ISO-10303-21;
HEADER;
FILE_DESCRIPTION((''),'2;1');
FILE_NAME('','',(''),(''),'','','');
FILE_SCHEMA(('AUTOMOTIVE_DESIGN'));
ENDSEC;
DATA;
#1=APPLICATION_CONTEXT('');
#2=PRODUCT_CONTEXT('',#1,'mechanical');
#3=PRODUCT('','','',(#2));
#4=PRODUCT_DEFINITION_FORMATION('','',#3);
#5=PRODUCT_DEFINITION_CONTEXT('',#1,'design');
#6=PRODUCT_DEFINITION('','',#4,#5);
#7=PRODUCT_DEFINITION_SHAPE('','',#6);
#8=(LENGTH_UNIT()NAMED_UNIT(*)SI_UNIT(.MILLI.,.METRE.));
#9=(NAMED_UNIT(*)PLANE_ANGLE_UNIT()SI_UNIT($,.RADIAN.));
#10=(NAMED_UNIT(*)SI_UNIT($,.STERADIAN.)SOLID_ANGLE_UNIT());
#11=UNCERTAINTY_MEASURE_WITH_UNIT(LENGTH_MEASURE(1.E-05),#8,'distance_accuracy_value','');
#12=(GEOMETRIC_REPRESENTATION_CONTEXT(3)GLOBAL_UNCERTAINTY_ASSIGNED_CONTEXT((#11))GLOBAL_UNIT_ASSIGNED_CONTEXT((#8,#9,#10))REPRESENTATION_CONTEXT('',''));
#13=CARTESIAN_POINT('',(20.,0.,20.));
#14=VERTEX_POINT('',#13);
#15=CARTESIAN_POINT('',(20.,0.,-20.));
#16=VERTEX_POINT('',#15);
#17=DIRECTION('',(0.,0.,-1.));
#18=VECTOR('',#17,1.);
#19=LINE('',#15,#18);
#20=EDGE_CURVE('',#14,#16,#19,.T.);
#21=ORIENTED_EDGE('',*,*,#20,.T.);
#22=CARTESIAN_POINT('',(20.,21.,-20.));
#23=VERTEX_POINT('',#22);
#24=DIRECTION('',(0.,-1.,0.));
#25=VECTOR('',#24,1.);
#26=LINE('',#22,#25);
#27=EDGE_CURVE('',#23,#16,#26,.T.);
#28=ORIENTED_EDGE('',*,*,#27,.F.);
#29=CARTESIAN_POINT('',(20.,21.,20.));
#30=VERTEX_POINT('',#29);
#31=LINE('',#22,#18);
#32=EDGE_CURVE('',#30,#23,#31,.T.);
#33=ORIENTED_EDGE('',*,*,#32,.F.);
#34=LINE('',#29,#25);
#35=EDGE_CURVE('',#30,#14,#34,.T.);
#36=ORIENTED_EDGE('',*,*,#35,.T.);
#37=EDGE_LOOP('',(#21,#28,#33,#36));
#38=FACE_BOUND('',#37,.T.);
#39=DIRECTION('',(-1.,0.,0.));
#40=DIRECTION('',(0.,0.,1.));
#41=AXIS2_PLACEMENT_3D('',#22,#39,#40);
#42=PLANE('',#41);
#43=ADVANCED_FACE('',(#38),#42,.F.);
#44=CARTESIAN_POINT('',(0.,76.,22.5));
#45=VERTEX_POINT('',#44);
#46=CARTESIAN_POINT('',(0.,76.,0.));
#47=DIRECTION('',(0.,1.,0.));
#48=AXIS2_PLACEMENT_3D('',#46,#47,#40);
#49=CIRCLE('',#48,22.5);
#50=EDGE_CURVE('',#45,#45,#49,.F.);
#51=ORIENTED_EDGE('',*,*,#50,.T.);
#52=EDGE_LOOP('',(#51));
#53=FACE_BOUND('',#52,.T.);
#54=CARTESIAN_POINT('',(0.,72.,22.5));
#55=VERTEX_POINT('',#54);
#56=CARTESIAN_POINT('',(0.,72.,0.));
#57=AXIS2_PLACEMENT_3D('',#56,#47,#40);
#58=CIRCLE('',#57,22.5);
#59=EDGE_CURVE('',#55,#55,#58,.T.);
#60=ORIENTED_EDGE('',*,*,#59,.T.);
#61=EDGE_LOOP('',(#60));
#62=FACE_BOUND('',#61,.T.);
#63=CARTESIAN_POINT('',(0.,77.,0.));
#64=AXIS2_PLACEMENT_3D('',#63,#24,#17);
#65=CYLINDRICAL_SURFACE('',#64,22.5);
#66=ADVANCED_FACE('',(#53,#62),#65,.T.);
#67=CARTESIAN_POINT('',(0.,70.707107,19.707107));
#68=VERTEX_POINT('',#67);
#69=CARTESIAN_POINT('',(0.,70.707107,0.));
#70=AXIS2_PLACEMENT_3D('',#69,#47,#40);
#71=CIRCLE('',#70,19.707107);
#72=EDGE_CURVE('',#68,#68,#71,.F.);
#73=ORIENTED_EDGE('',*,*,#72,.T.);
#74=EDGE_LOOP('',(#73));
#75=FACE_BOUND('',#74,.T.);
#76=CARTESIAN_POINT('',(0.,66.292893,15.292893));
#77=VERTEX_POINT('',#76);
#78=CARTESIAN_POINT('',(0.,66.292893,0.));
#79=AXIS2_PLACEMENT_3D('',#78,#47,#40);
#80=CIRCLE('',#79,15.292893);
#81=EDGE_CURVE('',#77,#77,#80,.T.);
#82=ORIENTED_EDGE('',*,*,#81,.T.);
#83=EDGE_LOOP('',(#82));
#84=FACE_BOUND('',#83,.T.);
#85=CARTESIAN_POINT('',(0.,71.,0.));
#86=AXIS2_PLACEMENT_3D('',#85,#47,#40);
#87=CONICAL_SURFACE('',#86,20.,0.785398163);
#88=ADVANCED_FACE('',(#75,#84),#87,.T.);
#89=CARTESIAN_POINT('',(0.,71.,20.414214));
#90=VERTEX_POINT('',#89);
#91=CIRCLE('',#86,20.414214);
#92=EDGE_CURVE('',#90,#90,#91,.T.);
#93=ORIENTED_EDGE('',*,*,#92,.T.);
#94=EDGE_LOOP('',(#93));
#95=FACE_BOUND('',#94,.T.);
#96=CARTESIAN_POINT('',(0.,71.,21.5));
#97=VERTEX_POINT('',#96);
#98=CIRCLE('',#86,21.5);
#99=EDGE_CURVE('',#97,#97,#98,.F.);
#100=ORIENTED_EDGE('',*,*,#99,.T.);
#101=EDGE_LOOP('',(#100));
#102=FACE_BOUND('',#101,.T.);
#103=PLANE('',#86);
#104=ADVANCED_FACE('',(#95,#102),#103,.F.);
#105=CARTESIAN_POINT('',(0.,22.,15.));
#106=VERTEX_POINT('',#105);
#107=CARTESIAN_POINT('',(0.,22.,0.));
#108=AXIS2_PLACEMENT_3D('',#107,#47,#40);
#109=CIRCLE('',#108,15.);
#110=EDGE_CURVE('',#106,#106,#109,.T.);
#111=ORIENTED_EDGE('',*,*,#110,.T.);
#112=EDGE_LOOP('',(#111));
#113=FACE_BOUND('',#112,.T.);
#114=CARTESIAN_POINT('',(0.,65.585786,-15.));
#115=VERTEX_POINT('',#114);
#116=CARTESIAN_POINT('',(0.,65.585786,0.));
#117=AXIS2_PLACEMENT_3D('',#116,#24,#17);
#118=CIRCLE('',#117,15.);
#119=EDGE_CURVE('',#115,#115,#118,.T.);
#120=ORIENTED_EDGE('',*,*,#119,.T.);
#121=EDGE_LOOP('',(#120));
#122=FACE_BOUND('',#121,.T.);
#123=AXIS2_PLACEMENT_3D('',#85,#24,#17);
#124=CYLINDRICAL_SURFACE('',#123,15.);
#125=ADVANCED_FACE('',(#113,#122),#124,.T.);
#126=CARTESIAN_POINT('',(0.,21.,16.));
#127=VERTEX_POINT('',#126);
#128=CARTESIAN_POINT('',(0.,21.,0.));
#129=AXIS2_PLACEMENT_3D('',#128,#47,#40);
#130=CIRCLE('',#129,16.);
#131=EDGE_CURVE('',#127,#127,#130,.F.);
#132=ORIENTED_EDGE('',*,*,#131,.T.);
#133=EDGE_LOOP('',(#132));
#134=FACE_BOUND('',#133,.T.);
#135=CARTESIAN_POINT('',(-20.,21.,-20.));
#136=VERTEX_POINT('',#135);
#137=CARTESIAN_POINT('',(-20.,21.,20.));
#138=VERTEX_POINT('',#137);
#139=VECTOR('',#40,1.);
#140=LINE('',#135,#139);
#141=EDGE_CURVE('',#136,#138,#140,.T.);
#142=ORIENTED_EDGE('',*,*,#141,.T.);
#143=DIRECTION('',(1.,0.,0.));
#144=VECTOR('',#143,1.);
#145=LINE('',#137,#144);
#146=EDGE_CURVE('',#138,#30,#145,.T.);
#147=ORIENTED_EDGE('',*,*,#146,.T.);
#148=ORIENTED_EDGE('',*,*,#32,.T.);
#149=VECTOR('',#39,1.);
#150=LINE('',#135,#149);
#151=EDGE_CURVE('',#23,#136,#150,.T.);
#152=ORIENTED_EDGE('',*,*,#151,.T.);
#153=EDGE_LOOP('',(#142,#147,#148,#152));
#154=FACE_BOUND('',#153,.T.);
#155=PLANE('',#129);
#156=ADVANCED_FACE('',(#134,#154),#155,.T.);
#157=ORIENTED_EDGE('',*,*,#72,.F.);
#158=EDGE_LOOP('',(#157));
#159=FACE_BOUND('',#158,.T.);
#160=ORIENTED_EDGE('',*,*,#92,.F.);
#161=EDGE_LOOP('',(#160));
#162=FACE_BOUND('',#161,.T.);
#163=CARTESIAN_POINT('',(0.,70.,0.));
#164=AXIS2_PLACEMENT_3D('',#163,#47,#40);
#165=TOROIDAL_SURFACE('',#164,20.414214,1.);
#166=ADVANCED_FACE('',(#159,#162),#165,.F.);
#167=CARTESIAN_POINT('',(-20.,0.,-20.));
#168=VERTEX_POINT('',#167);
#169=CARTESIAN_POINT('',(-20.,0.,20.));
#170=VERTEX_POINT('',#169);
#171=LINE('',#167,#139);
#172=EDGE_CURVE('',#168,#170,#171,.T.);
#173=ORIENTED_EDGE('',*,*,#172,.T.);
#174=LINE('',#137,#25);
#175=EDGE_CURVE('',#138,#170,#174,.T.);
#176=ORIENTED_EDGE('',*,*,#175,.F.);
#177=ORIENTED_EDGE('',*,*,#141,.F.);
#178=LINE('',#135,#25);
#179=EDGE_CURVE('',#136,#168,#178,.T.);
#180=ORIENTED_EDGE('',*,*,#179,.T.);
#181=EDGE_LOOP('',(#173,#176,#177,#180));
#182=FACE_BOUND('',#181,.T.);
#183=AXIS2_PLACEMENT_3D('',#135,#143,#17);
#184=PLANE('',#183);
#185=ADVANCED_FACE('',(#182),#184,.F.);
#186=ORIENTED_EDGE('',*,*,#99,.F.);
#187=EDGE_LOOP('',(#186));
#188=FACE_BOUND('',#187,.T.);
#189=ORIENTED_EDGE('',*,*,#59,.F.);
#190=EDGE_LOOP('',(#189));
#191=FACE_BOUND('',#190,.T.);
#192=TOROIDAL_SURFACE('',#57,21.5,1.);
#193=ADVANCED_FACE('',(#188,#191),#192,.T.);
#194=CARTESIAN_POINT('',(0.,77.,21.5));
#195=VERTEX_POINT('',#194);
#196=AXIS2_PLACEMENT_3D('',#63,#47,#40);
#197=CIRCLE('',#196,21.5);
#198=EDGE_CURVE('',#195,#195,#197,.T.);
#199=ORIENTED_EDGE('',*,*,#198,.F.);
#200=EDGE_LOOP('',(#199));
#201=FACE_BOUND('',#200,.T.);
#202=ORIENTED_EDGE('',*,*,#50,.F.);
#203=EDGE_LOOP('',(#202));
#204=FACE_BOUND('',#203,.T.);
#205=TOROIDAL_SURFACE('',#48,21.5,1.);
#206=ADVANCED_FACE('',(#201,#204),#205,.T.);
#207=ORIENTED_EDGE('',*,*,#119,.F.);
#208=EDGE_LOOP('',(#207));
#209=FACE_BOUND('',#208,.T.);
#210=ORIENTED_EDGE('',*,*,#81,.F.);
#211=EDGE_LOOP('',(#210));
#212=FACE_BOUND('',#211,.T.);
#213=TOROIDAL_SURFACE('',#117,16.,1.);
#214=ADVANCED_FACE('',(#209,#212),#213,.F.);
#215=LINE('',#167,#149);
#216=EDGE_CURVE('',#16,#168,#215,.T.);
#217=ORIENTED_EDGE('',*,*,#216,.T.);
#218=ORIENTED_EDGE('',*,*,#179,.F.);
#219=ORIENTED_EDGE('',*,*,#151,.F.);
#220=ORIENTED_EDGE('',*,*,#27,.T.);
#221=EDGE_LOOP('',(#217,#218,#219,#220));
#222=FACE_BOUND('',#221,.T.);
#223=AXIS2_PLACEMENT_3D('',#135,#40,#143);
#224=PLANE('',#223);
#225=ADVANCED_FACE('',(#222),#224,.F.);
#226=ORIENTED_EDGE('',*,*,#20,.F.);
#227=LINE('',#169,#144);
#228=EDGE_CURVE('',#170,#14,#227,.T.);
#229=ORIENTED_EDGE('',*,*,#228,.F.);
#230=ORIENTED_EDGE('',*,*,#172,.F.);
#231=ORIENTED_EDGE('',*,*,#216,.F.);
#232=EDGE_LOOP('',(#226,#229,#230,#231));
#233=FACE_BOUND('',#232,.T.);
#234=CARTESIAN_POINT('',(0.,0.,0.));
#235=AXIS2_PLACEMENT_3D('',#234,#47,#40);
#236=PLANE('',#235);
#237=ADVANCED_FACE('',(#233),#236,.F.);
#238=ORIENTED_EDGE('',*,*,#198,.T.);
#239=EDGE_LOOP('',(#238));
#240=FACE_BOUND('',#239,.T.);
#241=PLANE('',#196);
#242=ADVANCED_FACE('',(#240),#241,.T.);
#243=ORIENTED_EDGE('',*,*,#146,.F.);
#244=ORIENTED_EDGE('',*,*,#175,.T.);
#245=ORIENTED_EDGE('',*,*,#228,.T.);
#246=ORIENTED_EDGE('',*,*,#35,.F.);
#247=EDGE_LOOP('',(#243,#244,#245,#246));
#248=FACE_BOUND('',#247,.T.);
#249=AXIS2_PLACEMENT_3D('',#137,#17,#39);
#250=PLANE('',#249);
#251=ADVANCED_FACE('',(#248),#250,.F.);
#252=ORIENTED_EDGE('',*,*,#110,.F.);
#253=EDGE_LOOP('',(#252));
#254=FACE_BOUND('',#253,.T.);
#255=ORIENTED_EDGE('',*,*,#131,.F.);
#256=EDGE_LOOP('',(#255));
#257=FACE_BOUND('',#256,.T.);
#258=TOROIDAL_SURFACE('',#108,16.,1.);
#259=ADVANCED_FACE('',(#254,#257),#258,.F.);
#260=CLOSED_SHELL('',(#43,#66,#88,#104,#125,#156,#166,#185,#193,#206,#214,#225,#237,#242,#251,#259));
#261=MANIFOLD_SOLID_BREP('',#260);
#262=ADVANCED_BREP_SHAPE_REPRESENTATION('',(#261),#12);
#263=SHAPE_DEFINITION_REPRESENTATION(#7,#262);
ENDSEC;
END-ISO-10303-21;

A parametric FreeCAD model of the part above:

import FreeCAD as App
import Part
import Sketcher


def edges_at(feature, points):
    """Names of the edges that pass closest to the given points."""
    edges = feature.Shape.Edges
    near = lambda p: min(range(len(edges)), key=lambda i: edges[i].distToShape(Part.Vertex(*p))[0])
    return sorted({f"Edge{near(p) + 1}" for p in points})


def add_polygon(sketch, points):
    """Adds a closed chain of lines whose ends are joined by coincident constraints."""
    first, n = sketch.GeometryCount, len(points)
    for a, b in zip(points, points[1:] + points[:1]):
        sketch.addGeometry(Part.LineSegment(App.Vector(*a, 0), App.Vector(*b, 0)), False)
    for i in range(n):
        sketch.addConstraint(Sketcher.Constraint("Coincident", first + i, 2, first + (i + 1) % n, 1))

doc = App.newDocument("Part")
body = doc.addObject("PartDesign::Body", "Body")

# Sketch on XZ plane
sketch1 = body.newObject("Sketcher::SketchObject", "Sketch")
sketch1.AttachmentSupport = (doc.getObject("XZ_Plane"), [""])
sketch1.MapMode = "FlatFace"
add_polygon(sketch1, [(-20, -20), (-20, 20), (20, 20), (20, -20)])  # lines 0-3
sketch1.addConstraint([
    Sketcher.Constraint("Vertical", 0),
    Sketcher.Constraint("Horizontal", 1),
    Sketcher.Constraint("Vertical", 2),
    Sketcher.Constraint("Horizontal", 3),
    Sketcher.Constraint("Symmetric", 0, 2, 2, 2, -1, 1),
    Sketcher.Constraint("Equal", 3, 0),
    Sketcher.Constraint("DistanceX", 1, 1, 1, 2, 40.0),
])
pad1 = body.newObject("PartDesign::Pad", "Pad")
pad1.Profile = sketch1
pad1.Length = 21
pad1.Reversed = True

# Sketch on XZ plane
sketch2 = body.newObject("Sketcher::SketchObject", "Sketch001")
sketch2.AttachmentSupport = (doc.getObject("XZ_Plane"), [""])
sketch2.MapMode = "FlatFace"
sketch2.AttachmentOffset = App.Placement(App.Vector(0, 0, -21), App.Rotation())
sketch2.addGeometry(Part.Circle(App.Vector(0, 0, 0), App.Vector(0, 0, 1), 15), False)
sketch2.addConstraint([
    Sketcher.Constraint("Coincident", 0, 3, -1, 1),
    Sketcher.Constraint("Diameter", 0, 30.0),
])
pad2 = body.newObject("PartDesign::Pad", "Pad001")
pad2.Profile = sketch2
pad2.Length = 50
pad2.Reversed = True

# Sketch on XZ plane
sketch3 = body.newObject("Sketcher::SketchObject", "Sketch002")
sketch3.AttachmentSupport = (doc.getObject("XZ_Plane"), [""])
sketch3.MapMode = "FlatFace"
sketch3.AttachmentOffset = App.Placement(App.Vector(0, 0, -71), App.Rotation())
sketch3.addGeometry(Part.Circle(App.Vector(0, 0, 0), App.Vector(0, 0, 1), 22), False)
sketch3.addConstraint([
    Sketcher.Constraint("Coincident", 0, 3, -1, 1),
    Sketcher.Constraint("Diameter", 0, 45.0),
])
pad3 = body.newObject("PartDesign::Pad", "Pad002")
pad3.Profile = sketch3
pad3.Length = 6
pad3.Reversed = True
doc.recompute()

chamfer = body.newObject("PartDesign::Chamfer", "Chamfer")
chamfer.Base = (pad3, edges_at(pad3, [(-15, 71, 0)]))
chamfer.Size = 5
doc.recompute()

fillet = body.newObject("PartDesign::Fillet", "Fillet")
fillet.Base = (chamfer, edges_at(chamfer, [
    (-15, 21, 0),
    (-22.5, 71, 0),
    (-22.5, 77, 0),
    (-20, 71, 0),
    (-15, 66, 0),
]))
fillet.Radius = 1

doc.recompute()
